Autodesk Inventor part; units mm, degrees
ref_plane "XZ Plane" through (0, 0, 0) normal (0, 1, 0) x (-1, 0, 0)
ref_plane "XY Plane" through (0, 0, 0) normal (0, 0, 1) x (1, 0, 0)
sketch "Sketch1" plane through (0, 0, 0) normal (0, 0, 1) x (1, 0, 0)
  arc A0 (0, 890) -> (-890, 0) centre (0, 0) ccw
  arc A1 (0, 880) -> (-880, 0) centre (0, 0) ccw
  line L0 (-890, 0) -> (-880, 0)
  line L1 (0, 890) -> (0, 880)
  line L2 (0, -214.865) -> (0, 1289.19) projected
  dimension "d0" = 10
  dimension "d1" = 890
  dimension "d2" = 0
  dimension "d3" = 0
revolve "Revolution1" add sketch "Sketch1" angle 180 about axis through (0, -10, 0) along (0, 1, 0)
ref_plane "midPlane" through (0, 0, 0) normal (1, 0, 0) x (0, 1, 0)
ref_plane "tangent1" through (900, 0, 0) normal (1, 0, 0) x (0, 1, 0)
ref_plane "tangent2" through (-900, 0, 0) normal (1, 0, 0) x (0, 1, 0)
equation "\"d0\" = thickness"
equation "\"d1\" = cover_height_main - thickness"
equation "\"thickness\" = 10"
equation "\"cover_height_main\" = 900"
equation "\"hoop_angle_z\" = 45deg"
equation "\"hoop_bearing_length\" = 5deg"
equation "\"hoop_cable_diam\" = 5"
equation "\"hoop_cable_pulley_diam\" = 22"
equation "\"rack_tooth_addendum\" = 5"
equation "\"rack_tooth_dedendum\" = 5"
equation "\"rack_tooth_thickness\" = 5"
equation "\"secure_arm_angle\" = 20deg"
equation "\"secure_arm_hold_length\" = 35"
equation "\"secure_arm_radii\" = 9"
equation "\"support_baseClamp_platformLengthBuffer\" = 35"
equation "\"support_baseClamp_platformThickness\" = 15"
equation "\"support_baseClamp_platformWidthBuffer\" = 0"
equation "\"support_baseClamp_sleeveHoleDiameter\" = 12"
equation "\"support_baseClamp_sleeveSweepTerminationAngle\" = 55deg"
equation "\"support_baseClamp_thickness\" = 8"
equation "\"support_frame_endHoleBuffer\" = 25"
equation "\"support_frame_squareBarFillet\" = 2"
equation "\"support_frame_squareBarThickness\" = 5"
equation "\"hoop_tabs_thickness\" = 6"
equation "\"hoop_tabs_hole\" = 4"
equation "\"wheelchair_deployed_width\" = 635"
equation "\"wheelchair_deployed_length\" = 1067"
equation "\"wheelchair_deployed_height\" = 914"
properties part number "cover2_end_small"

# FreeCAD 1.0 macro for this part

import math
import FreeCAD as App
import Part
import Sketcher
from FreeCAD import Vector

doc = App.newDocument("Part")
body = doc.addObject("PartDesign::Body", "Body")

# Sketch on XY plane
sketch1 = body.newObject("Sketcher::SketchObject", "Sketch")
sketch1.AttachmentSupport = (doc.getObject("XY_Plane"), [""])
sketch1.MapMode = "FlatFace"
sketch1.addGeometry([
    Part.LineSegment(Vector(0, 880, 0), Vector(0, 890, 0)),
    Part.ArcOfCircle(Part.Circle(Vector(0, 0, 0), Vector(0, 0, 1), 890), math.radians(90), math.radians(180)),
    Part.LineSegment(Vector(-890, 0, 0), Vector(-880, 0, 0)),
    Part.ArcOfCircle(Part.Circle(Vector(0, 0, 0), Vector(0, 0, 1), 880), math.radians(90), math.radians(180)),
], False)
sketch1.addConstraint([
    Sketcher.Constraint("Coincident", 0, 2, 1, 1),
    Sketcher.Constraint("Coincident", 1, 2, 2, 1),
    Sketcher.Constraint("Coincident", 2, 2, 3, 2),
    Sketcher.Constraint("Coincident", 3, 1, 0, 1),
    Sketcher.Constraint("Vertical", 0),
    Sketcher.Constraint("Horizontal", 2),
    Sketcher.Constraint("Coincident", 1, 3, -1, 1),
    Sketcher.Constraint("Coincident", 3, 3, -1, 1),
    Sketcher.Constraint("PointOnObject", 0, 2, -2),
    Sketcher.Constraint("PointOnObject", 2, 2, -1),
    Sketcher.Constraint("Radius", 1, 890.0),
    Sketcher.Constraint("DistanceX", 2, 1, 2, 2, 10.0),
])
revolution = body.newObject("PartDesign::Revolution", "Revolution")
revolution.Profile = sketch1
revolution.ReferenceAxis = (sketch1, ["V_Axis"])
revolution.Angle = 180

doc.recompute()
